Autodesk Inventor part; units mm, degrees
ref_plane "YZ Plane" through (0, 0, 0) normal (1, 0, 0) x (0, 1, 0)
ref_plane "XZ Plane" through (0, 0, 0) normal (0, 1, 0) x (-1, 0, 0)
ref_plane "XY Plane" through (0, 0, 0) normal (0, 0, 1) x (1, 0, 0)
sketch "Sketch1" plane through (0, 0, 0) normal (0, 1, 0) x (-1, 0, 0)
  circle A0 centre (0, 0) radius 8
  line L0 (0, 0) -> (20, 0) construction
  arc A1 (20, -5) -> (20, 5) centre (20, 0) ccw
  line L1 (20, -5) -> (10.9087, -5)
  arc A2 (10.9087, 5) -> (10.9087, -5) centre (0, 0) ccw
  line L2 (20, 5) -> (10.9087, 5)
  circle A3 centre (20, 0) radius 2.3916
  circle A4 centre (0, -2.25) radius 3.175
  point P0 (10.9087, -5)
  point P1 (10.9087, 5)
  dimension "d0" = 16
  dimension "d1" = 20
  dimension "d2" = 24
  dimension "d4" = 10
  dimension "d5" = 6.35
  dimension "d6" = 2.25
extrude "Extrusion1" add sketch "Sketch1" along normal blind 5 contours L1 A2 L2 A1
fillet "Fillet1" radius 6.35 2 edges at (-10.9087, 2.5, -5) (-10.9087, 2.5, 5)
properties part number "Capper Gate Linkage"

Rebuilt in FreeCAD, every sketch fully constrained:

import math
import FreeCAD as App
import Part
import Sketcher

V = App.Vector
Q = App.Units.Quantity


def edges_at(feature, points):
    """Names of the edges that pass closest to the given points."""
    edges = feature.Shape.Edges
    near = lambda p: min(range(len(edges)), key=lambda i: edges[i].distToShape(Part.Vertex(*p))[0])
    return sorted({f"Edge{near(p) + 1}" for p in points})

doc = App.newDocument("Part")
body = doc.addObject("PartDesign::Body", "Body")

# Sketch on XZ plane
sketch1 = body.newObject("Sketcher::SketchObject", "Sketch")
sketch1.AttachmentSupport = (doc.getObject("XZ_Plane"), [""])
sketch1.MapMode = "FlatFace"
sketch1.addGeometry(Part.LineSegment(V(-10.9, -5, 0), V(-20, -5, 0)), False)
sketch1.addGeometry(Part.ArcOfCircle(Part.Circle(V(-20, 0, 0), V(0, 0, 1), 5), math.radians(90), math.radians(270)), False)
sketch1.addGeometry(Part.LineSegment(V(-20, 5, 0), V(-10.9, 5, 0)), False)
sketch1.addGeometry(Part.ArcOfCircle(Part.Circle(V(0, 0, 0), V(0, 0, 1), 12), math.radians(-155), math.radians(155)), False)
sketch1.addGeometry(Part.Circle(V(0, 0, 0), V(0, 0, 1), 8), False)
sketch1.addGeometry(Part.Circle(V(-20, 0, 0), V(0, 0, 1), 2.4), False)
sketch1.addConstraint(Sketcher.Constraint("Tangent", 0, 2, 1, 2))
sketch1.addConstraint(Sketcher.Constraint("Tangent", 1, 1, 2, 1))
sketch1.addConstraint(Sketcher.Constraint("Coincident", 2, 2, 3, 2))
sketch1.addConstraint(Sketcher.Constraint("Coincident", 3, 1, 0, 1))
sketch1.addConstraint(Sketcher.Constraint("Horizontal", 0))
sketch1.addConstraint(Sketcher.Constraint("Horizontal", 2))
sketch1.addConstraint(Sketcher.Constraint("Coincident", 3, 3, -1, 1))
sketch1.addConstraint(Sketcher.Constraint("Coincident", 4, 3, -1, 1))
sketch1.addConstraint(Sketcher.Constraint("Coincident", 5, 3, 1, 3))
sketch1.addConstraint(Sketcher.Constraint("PointOnObject", 1, 3, -1))
sketch1.addConstraint(Sketcher.Constraint("Diameter", 4, Q("16 mm")))
sketch1.addConstraint(Sketcher.Constraint("Radius", 1, Q("5 mm")))
sketch1.addConstraint(Sketcher.Constraint("Radius", 3, Q("12 mm")))
sketch1.addConstraint(Sketcher.Constraint("DistanceX", 1, 3, -1, 1, Q("20 mm")))
sketch1.addConstraint(Sketcher.Constraint("Diameter", 5, Q("4.7832 mm")))
pad1 = body.newObject("PartDesign::Pad", "Pad")
pad1.Profile = sketch1
pad1.Length = 5
pad1.Reversed = True
doc.recompute()

fillet = body.newObject("PartDesign::Fillet", "Fillet")
fillet.Base = (pad1, edges_at(pad1, [(-10.909, 2.5, -5), (-10.909, 2.5, 5)]))
fillet.Radius = 6.35

doc.recompute()
